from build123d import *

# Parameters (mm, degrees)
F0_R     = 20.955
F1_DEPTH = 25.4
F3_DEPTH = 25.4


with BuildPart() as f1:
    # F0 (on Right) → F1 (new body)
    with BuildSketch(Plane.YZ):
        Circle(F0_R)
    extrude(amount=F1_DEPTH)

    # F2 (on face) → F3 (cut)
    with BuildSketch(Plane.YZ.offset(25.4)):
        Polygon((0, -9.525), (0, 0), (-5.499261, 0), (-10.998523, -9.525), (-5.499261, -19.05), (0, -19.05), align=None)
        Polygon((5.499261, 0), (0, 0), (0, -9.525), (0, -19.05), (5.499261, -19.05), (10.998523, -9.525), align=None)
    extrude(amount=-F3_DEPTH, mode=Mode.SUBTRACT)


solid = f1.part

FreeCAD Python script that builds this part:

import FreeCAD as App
import Part
import Sketcher
from FreeCAD import Vector
Q = App.Units.Quantity


def add_polygon(sketch, points):
    """Adds a closed chain of lines whose ends are joined by coincident constraints."""
    first, n = sketch.GeometryCount, len(points)
    for a, b in zip(points, points[1:] + points[:1]):
        sketch.addGeometry(Part.LineSegment(App.Vector(*a, 0), App.Vector(*b, 0)), False)
    for i in range(n):
        sketch.addConstraint(Sketcher.Constraint("Coincident", first + i, 2, first + (i + 1) % n, 1))

doc = App.newDocument("Part")
params = doc.addObject("Spreadsheet::Sheet", "Params")
for row, (alias, value) in enumerate([
    ("sketch1_diameter", "1.65 in"),
    ("pad1_length", "1 in"),
    ("pocket1_length", "1 in"),
], start=1):
    params.set(f"A{row}", alias)
    params.set(f"B{row}", "=" + value)
    params.setAlias(f"B{row}", alias)

body = doc.addObject("PartDesign::Body", "Body")

sketch1 = body.newObject("Sketcher::SketchObject", "Sketch")
sketch1.AttachmentSupport = (doc.getObject("YZ_Plane"), [""])
sketch1.MapMode = "FlatFace"
sketch1.addGeometry(Part.Circle(Vector(0, 0, 0), Vector(0, 0, 1), 20.955), False)
sketch1.addConstraint(Sketcher.Constraint("Coincident", 0, 3, -1, 1))
sketch1.addConstraint(Sketcher.Constraint("Diameter", 0, Q("1.65 in")))
sketch1.setExpression("Constraints[1]", "Params.sketch1_diameter")
pad1 = body.newObject("PartDesign::Pad", "Pad")
pad1.Profile = sketch1
pad1.setExpression("Length", "Params.pad1_length")

sketch2 = body.newObject("Sketcher::SketchObject", "Sketch001")
sketch2.AttachmentSupport = (doc.getObject("YZ_Plane"), [""])
sketch2.MapMode = "FlatFace"
sketch2.AttachmentOffset = App.Placement(Vector(0, 0, 1 * 25.4), App.Rotation())
add_polygon(sketch2, [(-5.499261, 0), (-10.998523, -9.525), (-5.499261, -19.05), (5.499261, -19.05), (10.998523, -9.525), (5.499261, 0)])
sketch2.addConstraint(Sketcher.Constraint("Horizontal", 2))
sketch2.addConstraint(Sketcher.Constraint("Horizontal", 5))
sketch2.addConstraint(Sketcher.Constraint("Symmetric", 4, 2, 5, 2, -1, 1))
sketch2.addConstraint(Sketcher.Constraint("Symmetric", 0, 2, 3, 2, -2))
sketch2.addConstraint(Sketcher.Constraint("Parallel", 0, 3))
sketch2.addConstraint(Sketcher.Constraint("Parallel", 1, 4))
sketch2.addConstraint(Sketcher.Constraint("Vertical", 2, 2, 4, 2))
sketch2.addConstraint(Sketcher.Constraint("Angle", 0, Q("-120.000003 deg")))
sketch2.addConstraint(Sketcher.Constraint("DistanceY", 1, 2, -1, 1, Q("0.75 in")))
sketch2.addConstraint(Sketcher.Constraint("DistanceX", 2, 1, 2, 2, Q("10.998522 mm")))
pocket1 = body.newObject("PartDesign::Pocket", "Pocket")
pocket1.Profile = sketch2
pocket1.setExpression("Length", "Params.pocket1_length")

doc.recompute()
